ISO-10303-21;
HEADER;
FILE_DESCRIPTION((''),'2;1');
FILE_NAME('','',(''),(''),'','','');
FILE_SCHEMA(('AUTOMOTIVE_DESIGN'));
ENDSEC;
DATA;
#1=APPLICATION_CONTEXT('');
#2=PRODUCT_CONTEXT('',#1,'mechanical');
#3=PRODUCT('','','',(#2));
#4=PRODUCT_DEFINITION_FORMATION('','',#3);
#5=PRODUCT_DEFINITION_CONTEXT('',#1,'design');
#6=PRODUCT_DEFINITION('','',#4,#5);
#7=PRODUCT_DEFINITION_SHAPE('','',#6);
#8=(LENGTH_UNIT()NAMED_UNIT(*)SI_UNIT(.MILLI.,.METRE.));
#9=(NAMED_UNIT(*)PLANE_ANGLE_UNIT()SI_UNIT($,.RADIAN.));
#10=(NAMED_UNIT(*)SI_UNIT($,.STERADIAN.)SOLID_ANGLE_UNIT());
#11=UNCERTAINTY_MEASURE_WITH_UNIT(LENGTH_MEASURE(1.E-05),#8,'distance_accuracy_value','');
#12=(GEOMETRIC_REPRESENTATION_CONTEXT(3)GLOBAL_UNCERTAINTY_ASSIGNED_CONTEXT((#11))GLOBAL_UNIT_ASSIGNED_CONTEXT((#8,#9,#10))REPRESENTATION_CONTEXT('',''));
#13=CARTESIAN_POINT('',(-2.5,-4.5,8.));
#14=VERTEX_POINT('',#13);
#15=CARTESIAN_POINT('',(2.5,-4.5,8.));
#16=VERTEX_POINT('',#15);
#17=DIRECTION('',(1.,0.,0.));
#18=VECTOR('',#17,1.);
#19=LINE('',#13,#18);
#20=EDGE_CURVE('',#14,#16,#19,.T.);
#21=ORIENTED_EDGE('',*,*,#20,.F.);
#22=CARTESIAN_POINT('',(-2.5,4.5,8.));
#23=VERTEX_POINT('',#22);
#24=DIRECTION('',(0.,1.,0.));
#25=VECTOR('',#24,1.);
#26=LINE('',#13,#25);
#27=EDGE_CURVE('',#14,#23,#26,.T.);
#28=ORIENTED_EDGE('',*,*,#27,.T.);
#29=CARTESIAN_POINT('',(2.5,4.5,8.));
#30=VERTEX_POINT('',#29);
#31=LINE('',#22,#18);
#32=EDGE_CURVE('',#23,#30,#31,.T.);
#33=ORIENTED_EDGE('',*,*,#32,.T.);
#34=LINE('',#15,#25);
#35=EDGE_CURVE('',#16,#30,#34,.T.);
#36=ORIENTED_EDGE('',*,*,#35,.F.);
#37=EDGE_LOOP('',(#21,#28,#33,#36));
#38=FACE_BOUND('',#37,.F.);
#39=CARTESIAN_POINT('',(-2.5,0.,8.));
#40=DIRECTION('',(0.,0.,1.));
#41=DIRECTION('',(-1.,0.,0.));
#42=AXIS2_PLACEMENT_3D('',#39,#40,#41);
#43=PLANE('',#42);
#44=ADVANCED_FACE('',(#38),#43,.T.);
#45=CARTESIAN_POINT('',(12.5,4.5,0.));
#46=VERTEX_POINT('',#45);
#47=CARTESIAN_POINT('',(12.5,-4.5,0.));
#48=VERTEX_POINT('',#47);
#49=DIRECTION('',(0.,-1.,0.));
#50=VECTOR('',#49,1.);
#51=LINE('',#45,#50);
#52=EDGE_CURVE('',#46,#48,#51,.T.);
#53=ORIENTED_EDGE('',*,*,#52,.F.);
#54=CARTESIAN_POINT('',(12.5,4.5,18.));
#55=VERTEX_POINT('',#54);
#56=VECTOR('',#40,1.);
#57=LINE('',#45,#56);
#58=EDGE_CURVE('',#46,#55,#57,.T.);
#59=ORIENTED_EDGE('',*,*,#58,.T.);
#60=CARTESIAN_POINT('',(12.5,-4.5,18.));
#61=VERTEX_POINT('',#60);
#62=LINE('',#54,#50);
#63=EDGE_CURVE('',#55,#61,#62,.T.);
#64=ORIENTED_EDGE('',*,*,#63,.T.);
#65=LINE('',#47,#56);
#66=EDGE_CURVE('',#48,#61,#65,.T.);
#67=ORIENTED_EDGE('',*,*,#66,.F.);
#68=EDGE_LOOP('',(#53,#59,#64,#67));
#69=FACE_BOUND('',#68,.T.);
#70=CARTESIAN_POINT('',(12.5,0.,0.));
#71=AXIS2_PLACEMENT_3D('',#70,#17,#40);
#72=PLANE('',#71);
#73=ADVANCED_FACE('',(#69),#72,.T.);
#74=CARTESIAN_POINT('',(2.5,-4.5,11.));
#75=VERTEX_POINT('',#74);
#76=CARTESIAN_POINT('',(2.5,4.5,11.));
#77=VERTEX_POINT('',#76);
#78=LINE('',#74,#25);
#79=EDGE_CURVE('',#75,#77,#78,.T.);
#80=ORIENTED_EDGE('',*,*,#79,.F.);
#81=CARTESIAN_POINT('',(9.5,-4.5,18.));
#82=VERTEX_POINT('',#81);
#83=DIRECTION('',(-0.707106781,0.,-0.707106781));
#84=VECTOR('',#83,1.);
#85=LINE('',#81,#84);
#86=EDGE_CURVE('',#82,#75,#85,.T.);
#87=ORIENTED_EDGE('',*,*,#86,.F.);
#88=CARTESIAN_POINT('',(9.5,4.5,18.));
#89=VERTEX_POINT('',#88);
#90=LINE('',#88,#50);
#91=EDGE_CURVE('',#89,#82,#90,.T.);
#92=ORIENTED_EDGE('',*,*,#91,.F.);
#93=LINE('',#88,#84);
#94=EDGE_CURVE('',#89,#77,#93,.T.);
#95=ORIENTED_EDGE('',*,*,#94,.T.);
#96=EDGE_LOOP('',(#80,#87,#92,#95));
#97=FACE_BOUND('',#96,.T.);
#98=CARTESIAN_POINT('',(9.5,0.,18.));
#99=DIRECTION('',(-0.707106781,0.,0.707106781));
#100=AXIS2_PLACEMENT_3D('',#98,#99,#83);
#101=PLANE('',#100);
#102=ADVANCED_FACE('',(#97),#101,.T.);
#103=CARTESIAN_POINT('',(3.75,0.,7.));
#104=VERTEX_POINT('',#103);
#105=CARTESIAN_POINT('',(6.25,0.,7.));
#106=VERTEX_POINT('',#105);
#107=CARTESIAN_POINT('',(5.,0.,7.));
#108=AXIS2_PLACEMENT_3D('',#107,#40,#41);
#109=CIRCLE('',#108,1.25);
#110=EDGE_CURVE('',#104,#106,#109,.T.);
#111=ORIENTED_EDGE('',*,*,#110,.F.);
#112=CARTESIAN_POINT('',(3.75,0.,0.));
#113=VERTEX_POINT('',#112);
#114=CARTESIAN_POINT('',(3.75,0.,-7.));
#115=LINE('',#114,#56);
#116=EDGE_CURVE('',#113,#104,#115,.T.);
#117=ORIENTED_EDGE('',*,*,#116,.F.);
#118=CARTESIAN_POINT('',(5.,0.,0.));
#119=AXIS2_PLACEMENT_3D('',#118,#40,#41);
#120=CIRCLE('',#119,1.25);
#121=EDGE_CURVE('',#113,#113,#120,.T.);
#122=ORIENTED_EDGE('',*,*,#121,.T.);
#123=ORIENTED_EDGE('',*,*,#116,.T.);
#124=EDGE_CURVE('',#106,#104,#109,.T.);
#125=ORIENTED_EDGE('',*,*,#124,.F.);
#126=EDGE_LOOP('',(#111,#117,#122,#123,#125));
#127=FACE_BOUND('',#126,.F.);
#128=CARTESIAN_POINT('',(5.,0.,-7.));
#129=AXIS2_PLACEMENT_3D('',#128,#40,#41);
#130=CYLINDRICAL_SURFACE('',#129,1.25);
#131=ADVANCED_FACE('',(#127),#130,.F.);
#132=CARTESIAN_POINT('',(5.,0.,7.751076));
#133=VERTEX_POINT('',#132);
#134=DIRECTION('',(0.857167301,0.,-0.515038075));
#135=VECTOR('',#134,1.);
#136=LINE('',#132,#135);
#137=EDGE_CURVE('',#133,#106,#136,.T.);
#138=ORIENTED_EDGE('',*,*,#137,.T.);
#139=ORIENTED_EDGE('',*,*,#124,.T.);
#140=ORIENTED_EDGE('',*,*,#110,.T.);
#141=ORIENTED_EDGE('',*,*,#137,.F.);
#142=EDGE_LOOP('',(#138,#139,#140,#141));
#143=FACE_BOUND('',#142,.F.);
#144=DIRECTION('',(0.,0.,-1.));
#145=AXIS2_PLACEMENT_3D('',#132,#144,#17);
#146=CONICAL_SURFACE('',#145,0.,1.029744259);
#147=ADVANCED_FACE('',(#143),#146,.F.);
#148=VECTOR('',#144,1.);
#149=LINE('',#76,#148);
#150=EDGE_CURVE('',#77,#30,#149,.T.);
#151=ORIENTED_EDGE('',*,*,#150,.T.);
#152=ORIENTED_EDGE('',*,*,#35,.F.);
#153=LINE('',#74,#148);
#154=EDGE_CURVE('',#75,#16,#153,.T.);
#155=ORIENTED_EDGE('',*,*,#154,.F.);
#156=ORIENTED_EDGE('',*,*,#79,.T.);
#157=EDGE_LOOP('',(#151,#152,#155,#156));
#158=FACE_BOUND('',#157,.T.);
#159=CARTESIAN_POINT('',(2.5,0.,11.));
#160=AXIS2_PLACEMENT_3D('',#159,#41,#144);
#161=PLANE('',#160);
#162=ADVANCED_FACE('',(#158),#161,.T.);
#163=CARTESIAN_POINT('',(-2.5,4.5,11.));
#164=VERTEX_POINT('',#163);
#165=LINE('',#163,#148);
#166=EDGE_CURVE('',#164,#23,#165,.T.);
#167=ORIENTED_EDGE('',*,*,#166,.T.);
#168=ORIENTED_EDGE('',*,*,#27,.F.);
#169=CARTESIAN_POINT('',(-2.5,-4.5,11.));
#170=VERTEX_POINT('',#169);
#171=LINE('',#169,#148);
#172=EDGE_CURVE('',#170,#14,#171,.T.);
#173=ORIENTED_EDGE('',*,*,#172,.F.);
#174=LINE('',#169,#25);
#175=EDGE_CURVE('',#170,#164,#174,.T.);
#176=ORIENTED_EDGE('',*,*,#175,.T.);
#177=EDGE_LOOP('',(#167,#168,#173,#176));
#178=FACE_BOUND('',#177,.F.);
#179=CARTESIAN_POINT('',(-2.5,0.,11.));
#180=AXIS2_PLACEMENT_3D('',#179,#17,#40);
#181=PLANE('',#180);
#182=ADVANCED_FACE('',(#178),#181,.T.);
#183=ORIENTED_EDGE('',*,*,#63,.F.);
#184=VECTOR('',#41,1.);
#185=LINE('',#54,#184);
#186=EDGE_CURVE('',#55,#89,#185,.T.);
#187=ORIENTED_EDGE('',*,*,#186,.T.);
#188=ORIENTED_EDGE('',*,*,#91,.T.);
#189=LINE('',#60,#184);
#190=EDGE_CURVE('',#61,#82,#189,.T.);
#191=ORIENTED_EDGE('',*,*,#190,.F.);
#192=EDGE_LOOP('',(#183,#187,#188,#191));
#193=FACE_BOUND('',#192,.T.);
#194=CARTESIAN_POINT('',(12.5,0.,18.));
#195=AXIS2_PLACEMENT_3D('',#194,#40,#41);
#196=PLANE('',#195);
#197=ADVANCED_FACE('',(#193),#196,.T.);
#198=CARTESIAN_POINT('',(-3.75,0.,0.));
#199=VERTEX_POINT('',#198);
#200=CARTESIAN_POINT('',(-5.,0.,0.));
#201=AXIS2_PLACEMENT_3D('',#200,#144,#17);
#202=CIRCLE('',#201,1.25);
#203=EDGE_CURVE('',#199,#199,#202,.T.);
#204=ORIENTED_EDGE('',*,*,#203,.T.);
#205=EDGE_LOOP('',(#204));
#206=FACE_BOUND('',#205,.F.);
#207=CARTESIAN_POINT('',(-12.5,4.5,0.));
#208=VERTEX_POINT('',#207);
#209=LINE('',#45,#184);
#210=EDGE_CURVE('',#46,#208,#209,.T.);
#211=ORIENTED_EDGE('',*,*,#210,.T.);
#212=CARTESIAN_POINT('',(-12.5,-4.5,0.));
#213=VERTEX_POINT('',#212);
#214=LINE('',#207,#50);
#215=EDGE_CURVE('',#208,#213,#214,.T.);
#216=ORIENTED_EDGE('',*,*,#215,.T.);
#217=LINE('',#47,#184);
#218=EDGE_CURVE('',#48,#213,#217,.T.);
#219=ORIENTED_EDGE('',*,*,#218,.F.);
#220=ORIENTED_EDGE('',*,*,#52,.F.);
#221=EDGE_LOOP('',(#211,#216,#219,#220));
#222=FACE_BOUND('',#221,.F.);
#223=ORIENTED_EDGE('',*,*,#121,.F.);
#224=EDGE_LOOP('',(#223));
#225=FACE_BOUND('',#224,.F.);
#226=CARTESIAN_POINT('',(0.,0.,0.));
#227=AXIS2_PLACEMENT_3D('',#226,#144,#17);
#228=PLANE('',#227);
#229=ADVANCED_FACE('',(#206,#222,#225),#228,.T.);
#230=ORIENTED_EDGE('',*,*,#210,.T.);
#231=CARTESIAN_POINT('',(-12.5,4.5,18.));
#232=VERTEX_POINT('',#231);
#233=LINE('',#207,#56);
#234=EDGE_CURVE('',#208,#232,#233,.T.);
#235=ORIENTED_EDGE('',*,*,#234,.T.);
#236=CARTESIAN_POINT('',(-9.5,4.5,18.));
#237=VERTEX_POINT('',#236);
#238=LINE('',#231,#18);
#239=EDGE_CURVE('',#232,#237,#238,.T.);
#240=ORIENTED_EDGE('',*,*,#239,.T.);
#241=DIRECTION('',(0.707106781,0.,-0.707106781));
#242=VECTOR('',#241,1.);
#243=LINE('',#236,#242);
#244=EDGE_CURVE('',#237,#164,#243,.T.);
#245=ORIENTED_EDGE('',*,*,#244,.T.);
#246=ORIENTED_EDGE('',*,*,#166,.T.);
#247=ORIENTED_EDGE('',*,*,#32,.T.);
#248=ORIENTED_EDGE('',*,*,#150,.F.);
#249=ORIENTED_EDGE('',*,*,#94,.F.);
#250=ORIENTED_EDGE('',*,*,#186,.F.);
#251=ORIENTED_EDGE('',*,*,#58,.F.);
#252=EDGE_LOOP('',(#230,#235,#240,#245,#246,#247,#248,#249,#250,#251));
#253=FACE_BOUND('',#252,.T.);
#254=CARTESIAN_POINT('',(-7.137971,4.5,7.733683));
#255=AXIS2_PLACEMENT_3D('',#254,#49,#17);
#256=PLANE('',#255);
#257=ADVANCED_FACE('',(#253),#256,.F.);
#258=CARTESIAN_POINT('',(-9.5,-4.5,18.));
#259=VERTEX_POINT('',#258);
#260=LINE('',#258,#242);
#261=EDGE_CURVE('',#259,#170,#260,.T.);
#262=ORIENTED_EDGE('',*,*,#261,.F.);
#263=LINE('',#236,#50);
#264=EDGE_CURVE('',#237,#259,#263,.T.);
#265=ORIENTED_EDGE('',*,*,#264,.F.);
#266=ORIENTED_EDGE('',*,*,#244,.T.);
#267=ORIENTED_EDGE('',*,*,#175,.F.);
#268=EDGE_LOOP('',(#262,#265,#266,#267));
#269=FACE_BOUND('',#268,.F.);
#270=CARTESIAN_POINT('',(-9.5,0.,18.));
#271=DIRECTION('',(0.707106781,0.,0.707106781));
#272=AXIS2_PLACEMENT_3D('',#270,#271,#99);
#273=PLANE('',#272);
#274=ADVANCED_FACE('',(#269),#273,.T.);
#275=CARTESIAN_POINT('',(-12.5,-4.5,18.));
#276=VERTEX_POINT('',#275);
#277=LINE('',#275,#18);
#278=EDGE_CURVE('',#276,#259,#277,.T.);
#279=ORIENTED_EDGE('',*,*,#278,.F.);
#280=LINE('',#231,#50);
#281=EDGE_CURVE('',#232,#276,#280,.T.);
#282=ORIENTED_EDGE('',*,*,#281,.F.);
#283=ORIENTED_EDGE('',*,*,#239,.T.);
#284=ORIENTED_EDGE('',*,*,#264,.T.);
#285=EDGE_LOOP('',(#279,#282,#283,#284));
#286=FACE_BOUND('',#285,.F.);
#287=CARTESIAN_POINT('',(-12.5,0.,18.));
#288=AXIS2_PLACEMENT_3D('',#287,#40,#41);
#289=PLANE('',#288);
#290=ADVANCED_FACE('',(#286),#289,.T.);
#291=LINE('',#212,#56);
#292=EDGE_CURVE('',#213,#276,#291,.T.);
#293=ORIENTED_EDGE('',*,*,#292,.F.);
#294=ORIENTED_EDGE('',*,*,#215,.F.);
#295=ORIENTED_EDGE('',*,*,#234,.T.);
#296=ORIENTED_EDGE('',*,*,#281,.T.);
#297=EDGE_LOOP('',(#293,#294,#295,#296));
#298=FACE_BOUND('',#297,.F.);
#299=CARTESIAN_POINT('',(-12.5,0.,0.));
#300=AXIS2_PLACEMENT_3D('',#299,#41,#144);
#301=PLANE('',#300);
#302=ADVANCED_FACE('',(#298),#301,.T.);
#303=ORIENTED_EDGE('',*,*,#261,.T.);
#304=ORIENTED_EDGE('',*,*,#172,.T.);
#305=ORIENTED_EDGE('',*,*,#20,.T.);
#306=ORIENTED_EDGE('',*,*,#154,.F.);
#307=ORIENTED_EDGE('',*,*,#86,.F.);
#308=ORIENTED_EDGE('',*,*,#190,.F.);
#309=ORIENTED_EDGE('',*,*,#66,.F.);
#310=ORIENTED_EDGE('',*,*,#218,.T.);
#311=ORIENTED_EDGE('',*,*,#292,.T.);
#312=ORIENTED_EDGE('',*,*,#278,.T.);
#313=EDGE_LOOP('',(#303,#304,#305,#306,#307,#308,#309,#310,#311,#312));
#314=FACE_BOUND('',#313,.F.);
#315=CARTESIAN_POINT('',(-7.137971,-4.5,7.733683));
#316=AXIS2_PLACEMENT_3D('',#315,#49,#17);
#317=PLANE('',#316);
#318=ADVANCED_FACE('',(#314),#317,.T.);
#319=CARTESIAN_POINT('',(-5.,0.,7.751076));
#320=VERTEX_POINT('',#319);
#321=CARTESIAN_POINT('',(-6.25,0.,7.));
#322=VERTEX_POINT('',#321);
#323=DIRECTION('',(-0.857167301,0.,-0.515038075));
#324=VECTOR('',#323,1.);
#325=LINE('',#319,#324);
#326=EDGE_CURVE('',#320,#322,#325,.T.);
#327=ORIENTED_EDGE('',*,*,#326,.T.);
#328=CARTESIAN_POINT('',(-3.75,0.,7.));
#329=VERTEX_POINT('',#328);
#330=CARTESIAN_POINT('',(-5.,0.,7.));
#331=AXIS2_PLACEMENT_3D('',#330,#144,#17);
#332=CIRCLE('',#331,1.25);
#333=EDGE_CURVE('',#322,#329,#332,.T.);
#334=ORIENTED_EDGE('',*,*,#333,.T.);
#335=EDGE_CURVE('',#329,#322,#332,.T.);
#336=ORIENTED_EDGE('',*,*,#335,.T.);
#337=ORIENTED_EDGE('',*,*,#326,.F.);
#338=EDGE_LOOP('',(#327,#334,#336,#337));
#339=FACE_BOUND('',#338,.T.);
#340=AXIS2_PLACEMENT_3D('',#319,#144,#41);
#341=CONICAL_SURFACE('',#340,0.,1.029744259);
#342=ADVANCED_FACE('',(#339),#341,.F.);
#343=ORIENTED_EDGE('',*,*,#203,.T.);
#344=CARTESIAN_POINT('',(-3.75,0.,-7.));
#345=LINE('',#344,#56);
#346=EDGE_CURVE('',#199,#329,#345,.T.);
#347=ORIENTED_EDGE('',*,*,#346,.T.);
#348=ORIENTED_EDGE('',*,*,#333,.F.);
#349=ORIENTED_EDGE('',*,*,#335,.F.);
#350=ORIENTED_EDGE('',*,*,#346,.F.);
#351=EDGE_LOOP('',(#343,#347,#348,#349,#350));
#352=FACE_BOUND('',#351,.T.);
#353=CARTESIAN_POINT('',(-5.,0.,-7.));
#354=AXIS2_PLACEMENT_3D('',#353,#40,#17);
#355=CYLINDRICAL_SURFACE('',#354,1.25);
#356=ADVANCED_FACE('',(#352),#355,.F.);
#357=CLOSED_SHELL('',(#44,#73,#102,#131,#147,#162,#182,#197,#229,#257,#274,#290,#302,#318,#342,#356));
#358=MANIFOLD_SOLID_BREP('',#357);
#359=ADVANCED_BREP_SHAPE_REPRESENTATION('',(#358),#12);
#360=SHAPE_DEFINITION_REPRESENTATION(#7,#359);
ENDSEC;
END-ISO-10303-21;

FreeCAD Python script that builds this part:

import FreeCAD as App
import Part
import Sketcher
from FreeCAD import Vector
Q = App.Units.Quantity


def add_polygon(sketch, points):
    """Adds a closed chain of lines whose ends are joined by coincident constraints."""
    first, n = sketch.GeometryCount, len(points)
    for a, b in zip(points, points[1:] + points[:1]):
        sketch.addGeometry(Part.LineSegment(App.Vector(*a, 0), App.Vector(*b, 0)), False)
    for i in range(n):
        sketch.addConstraint(Sketcher.Constraint("Coincident", first + i, 2, first + (i + 1) % n, 1))

doc = App.newDocument("Part")
body = doc.addObject("PartDesign::Body", "Body")

sketch1 = doc.addObject("Sketcher::SketchObject", "Sketch")
body.addObject(sketch1)
sketch1.AttachmentSupport = (doc.XZ_Plane, [""])
sketch1.MapMode = "FlatFace"
add_polygon(sketch1, [(0, 8), (0, 0), (12.5, 0), (12.5, 18), (9.5, 18), (2.5, 11), (2.5, 8)])
sketch1.addConstraint([
    Sketcher.Constraint("Vertical", 0),
    Sketcher.Constraint("Horizontal", 1),
    Sketcher.Constraint("Vertical", 2),
    Sketcher.Constraint("Horizontal", 3),
    Sketcher.Constraint("Vertical", 5),
    Sketcher.Constraint("Horizontal", 6),
    Sketcher.Constraint("Coincident", 0, 2, -1, 1),
    Sketcher.Constraint("Equal", 3, 5),
    Sketcher.Constraint("DistanceX", 3, 2, 3, 1, 3.0),
    Sketcher.Constraint("DistanceY", 0, 2, 0, 1, 8.0),
    Sketcher.Constraint("DistanceY", 2, 1, 2, 2, 18.0),
    Sketcher.Constraint("Angle", 4, Q("-135 deg")),
    Sketcher.Constraint("DistanceX", 1, 1, 1, 2, 12.5),
])
pad1 = doc.addObject("PartDesign::Pad", "Pad")
body.addObject(pad1)
pad1.Profile = sketch1
pad1.Length = 9
pad1.Midplane = True

sketch2 = doc.addObject("Sketcher::SketchObject", "Sketch001")
body.addObject(sketch2)
sketch2.AttachmentSupport = (doc.XY_Plane, [""])
sketch2.MapMode = "FlatFace"
sketch2.addGeometry(Part.Circle(Vector(5, 0, 0), Vector(0, 0, 1), 1.2), False)
sketch2.addConstraint([
    Sketcher.Constraint("PointOnObject", 0, 3, -1),
    Sketcher.Constraint("Diameter", 0, 2.5),
    Sketcher.Constraint("DistanceX", -1, 1, 0, 3, 5.0),
])
doc.recompute()
hole = doc.addObject("PartDesign::Hole", "Hole")
body.addObject(hole)
hole.Profile = sketch2
hole.ThreadType = "None"
hole.Diameter = 2.5
hole.DepthType = "Dimension"
hole.Depth = 7
hole.DrillPoint = "Angled"
hole.DrillPointAngle = 118
hole.Reversed = True
body2 = doc.addObject("PartDesign::Body", "Body001")
doc.recompute()

body2.BaseFeature = body
doc.recompute()

mirroring = doc.addObject("Part::Mirroring", "Mirroring")
mirroring.Source = body
mirroring.Base = Vector(0, 0, 0)
mirroring.Normal = Vector(1, 0, 0)
body3 = doc.addObject("PartDesign::Body", "Body002")
body3.BaseFeature = mirroring
boolean = doc.addObject("PartDesign::Boolean", "Boolean")
body2.addObject(boolean)
boolean.Type = "Fuse"
boolean.addObjects([body3])
doc.recompute()
mirroring.Visibility = False

doc.recompute()
